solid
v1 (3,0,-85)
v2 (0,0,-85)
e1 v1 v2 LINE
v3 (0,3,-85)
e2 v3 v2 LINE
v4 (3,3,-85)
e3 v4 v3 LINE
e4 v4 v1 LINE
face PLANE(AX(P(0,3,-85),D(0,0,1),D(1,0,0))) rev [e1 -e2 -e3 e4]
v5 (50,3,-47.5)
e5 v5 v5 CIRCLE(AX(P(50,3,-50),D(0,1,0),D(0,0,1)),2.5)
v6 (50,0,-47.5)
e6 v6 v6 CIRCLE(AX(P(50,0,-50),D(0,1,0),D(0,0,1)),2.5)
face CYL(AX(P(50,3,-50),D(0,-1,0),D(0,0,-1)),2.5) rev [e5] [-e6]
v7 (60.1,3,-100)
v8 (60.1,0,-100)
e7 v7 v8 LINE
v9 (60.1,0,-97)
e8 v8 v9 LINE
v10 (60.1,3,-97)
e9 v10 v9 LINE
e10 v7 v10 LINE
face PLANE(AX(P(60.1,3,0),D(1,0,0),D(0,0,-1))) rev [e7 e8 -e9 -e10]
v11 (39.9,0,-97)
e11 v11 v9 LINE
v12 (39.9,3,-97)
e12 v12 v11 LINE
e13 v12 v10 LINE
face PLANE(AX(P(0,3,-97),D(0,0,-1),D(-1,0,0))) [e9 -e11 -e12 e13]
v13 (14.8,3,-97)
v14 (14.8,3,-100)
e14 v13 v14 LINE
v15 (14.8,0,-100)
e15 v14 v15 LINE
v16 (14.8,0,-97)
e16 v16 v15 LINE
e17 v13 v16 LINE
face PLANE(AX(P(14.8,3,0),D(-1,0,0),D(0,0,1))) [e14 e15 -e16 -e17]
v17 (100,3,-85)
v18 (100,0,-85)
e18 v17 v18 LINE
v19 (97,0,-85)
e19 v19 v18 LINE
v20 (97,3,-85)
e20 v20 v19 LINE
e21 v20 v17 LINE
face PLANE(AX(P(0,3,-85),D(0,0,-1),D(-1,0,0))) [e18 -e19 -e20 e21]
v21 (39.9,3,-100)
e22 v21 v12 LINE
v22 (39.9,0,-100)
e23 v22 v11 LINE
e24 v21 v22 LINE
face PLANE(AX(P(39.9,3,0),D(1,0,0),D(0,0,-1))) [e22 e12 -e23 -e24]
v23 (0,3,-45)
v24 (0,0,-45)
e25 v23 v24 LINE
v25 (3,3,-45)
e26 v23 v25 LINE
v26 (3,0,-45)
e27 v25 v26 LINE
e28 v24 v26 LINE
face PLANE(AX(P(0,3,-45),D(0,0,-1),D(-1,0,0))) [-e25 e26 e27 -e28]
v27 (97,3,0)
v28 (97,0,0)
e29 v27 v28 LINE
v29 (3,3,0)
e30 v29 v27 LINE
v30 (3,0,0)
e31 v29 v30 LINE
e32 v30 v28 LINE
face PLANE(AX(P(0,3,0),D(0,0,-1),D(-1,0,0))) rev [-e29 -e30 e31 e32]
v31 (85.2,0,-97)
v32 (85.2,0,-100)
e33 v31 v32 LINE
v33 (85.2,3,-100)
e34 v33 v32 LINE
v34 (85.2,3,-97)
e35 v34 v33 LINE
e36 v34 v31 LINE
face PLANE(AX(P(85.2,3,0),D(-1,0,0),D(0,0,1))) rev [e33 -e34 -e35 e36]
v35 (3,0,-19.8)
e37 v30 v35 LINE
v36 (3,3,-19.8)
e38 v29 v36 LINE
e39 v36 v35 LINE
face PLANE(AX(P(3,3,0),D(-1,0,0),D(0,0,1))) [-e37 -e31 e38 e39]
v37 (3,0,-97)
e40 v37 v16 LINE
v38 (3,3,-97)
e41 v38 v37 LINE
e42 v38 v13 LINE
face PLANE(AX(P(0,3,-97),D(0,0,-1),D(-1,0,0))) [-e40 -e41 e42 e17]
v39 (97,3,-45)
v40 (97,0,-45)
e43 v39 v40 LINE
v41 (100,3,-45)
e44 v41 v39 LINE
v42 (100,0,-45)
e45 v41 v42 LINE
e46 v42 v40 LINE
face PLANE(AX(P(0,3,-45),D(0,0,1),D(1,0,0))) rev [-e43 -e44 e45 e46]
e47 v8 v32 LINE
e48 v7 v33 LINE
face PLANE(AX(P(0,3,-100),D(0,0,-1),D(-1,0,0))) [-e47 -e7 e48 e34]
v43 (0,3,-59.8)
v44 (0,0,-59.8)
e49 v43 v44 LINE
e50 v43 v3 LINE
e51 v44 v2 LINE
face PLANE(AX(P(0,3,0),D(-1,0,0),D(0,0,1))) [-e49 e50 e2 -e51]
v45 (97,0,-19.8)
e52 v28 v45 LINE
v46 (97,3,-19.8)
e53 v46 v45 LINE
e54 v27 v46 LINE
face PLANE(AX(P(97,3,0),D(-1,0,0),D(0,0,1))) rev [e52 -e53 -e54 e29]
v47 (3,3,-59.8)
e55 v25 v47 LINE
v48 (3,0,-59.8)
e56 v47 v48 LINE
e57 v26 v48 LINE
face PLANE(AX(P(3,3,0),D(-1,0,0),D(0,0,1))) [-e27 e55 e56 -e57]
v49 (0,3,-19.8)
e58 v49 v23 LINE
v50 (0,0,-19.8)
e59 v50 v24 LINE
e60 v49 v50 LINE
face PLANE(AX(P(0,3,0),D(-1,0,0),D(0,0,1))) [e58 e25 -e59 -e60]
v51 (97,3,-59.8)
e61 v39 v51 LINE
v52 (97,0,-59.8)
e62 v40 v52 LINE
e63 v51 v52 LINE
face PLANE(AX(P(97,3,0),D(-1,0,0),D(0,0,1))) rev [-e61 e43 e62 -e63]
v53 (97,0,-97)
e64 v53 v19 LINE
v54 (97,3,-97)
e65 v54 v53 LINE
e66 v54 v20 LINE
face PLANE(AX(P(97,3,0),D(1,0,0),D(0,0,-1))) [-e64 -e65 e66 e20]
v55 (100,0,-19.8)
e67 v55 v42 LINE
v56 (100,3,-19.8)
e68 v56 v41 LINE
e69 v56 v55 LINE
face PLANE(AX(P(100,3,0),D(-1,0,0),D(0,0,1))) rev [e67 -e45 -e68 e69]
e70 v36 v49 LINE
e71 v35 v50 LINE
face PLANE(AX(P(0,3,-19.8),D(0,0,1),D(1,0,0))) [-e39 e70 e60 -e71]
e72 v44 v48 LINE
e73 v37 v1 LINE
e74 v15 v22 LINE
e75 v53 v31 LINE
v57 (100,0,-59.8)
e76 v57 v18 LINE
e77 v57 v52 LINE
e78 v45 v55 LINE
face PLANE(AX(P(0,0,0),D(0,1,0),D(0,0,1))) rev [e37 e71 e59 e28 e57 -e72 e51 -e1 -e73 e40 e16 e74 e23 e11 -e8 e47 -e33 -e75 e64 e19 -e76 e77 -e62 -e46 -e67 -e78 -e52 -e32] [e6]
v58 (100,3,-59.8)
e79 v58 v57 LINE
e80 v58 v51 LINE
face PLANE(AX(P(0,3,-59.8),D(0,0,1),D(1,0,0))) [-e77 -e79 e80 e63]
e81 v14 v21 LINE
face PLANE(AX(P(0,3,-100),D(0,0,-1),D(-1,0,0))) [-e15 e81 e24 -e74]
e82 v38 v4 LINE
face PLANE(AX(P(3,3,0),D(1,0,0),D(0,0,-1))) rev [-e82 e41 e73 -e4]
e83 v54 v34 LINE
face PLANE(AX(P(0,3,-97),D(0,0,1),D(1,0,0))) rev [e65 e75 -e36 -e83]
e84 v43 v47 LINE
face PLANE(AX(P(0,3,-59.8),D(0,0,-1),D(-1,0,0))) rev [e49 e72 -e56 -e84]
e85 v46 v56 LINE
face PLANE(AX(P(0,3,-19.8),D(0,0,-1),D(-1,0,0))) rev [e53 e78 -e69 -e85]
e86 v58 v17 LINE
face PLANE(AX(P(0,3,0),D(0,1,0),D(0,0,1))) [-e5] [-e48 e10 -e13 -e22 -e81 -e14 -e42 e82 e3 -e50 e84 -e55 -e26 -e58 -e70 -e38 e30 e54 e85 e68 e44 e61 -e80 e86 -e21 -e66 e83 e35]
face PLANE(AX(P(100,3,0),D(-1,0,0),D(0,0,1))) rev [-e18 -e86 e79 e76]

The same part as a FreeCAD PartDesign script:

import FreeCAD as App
import Part
import Sketcher

doc = App.newDocument("Part")
body = doc.addObject("PartDesign::Body", "Body")

sketch1 = body.newObject("Sketcher::SketchObject", "Sketch")
sketch1.AttachmentSupport = (doc.getObject("XZ_Plane"), [""])
sketch1.MapMode = "FlatFace"
sketch1.addGeometry([
    Part.LineSegment(App.Vector(3, -19.8, 0), App.Vector(3, 0, 0)),
    Part.LineSegment(App.Vector(3, 0, 0), App.Vector(97, 0, 0)),
    Part.LineSegment(App.Vector(97, 0, 0), App.Vector(97, -19.8, 0)),
    Part.LineSegment(App.Vector(97, -19.8, 0), App.Vector(100, -19.8, 0)),
    Part.LineSegment(App.Vector(100, -19.8, 0), App.Vector(100, -45, 0)),
    Part.LineSegment(App.Vector(100, -45, 0), App.Vector(97, -45, 0)),
    Part.LineSegment(App.Vector(97, -45, 0), App.Vector(97, -59.8, 0)),
    Part.LineSegment(App.Vector(97, -59.8, 0), App.Vector(100, -59.8, 0)),
    Part.LineSegment(App.Vector(100, -59.8, 0), App.Vector(100, -85, 0)),
    Part.LineSegment(App.Vector(100, -85, 0), App.Vector(97, -85, 0)),
    Part.LineSegment(App.Vector(97, -85, 0), App.Vector(97, -97, 0)),
    Part.LineSegment(App.Vector(97, -97, 0), App.Vector(85.2, -97, 0)),
    Part.LineSegment(App.Vector(85.2, -97, 0), App.Vector(85.2, -100, 0)),
    Part.LineSegment(App.Vector(85.2, -100, 0), App.Vector(60.1, -100, 0)),
    Part.LineSegment(App.Vector(60.1, -100, 0), App.Vector(60.1, -97, 0)),
    Part.LineSegment(App.Vector(60.1, -97, 0), App.Vector(39.9, -97, 0)),
    Part.LineSegment(App.Vector(39.9, -97, 0), App.Vector(39.9, -100, 0)),
    Part.LineSegment(App.Vector(39.9, -100, 0), App.Vector(14.8, -100, 0)),
    Part.LineSegment(App.Vector(14.8, -100, 0), App.Vector(14.8, -97, 0)),
    Part.LineSegment(App.Vector(14.8, -97, 0), App.Vector(3, -97, 0)),
    Part.LineSegment(App.Vector(3, -97, 0), App.Vector(3, -85, 0)),
    Part.LineSegment(App.Vector(3, -85, 0), App.Vector(0, -85, 0)),
    Part.LineSegment(App.Vector(0, -85, 0), App.Vector(0, -59.8, 0)),
    Part.LineSegment(App.Vector(0, -59.8, 0), App.Vector(3, -59.8, 0)),
    Part.LineSegment(App.Vector(3, -59.8, 0), App.Vector(3, -45, 0)),
    Part.LineSegment(App.Vector(3, -45, 0), App.Vector(0, -45, 0)),
    Part.LineSegment(App.Vector(0, -45, 0), App.Vector(0, -19.8, 0)),
    Part.LineSegment(App.Vector(0, -19.8, 0), App.Vector(3, -19.8, 0)),
    Part.Circle(App.Vector(50, -50, 0), App.Vector(0, 0, 1), 2.5),
], False)
sketch1.addConstraint([
    Sketcher.Constraint("Coincident", 0, 2, 1, 1),
    Sketcher.Constraint("Coincident", 1, 2, 2, 1),
    Sketcher.Constraint("Coincident", 2, 2, 3, 1),
    Sketcher.Constraint("Coincident", 3, 2, 4, 1),
    Sketcher.Constraint("Coincident", 4, 2, 5, 1),
    Sketcher.Constraint("Coincident", 5, 2, 6, 1),
    Sketcher.Constraint("Coincident", 6, 2, 7, 1),
    Sketcher.Constraint("Coincident", 7, 2, 8, 1),
    Sketcher.Constraint("Coincident", 8, 2, 9, 1),
    Sketcher.Constraint("Coincident", 9, 2, 10, 1),
    Sketcher.Constraint("Coincident", 10, 2, 11, 1),
    Sketcher.Constraint("Coincident", 11, 2, 12, 1),
    Sketcher.Constraint("Coincident", 12, 2, 13, 1),
    Sketcher.Constraint("Coincident", 13, 2, 14, 1),
    Sketcher.Constraint("Coincident", 14, 2, 15, 1),
    Sketcher.Constraint("Coincident", 15, 2, 16, 1),
    Sketcher.Constraint("Coincident", 16, 2, 17, 1),
    Sketcher.Constraint("Coincident", 17, 2, 18, 1),
    Sketcher.Constraint("Coincident", 18, 2, 19, 1),
    Sketcher.Constraint("Coincident", 19, 2, 20, 1),
    Sketcher.Constraint("Coincident", 20, 2, 21, 1),
    Sketcher.Constraint("Coincident", 21, 2, 22, 1),
    Sketcher.Constraint("Coincident", 22, 2, 23, 1),
    Sketcher.Constraint("Coincident", 23, 2, 24, 1),
    Sketcher.Constraint("Coincident", 24, 2, 25, 1),
    Sketcher.Constraint("Coincident", 25, 2, 26, 1),
    Sketcher.Constraint("Coincident", 26, 2, 27, 1),
    Sketcher.Constraint("Coincident", 27, 2, 0, 1),
    Sketcher.Constraint("Vertical", 0),
    Sketcher.Constraint("Horizontal", 1),
    Sketcher.Constraint("Vertical", 2),
    Sketcher.Constraint("Horizontal", 3),
    Sketcher.Constraint("Vertical", 4),
    Sketcher.Constraint("Horizontal", 5),
    Sketcher.Constraint("Vertical", 6),
    Sketcher.Constraint("Horizontal", 7),
    Sketcher.Constraint("Vertical", 8),
    Sketcher.Constraint("Horizontal", 9),
    Sketcher.Constraint("Vertical", 10),
    Sketcher.Constraint("Horizontal", 11),
    Sketcher.Constraint("Vertical", 12),
    Sketcher.Constraint("Horizontal", 13),
    Sketcher.Constraint("Vertical", 14),
    Sketcher.Constraint("Horizontal", 15),
    Sketcher.Constraint("Vertical", 16),
    Sketcher.Constraint("Horizontal", 17),
    Sketcher.Constraint("Vertical", 18),
    Sketcher.Constraint("Horizontal", 19),
    Sketcher.Constraint("Vertical", 20),
    Sketcher.Constraint("Horizontal", 21),
    Sketcher.Constraint("Vertical", 22),
    Sketcher.Constraint("Horizontal", 23),
    Sketcher.Constraint("Vertical", 24),
    Sketcher.Constraint("Horizontal", 25),
    Sketcher.Constraint("Vertical", 26),
    Sketcher.Constraint("Horizontal", 27),
    Sketcher.Constraint("PointOnObject", 0, 2, -1),
    Sketcher.Constraint("PointOnObject", 21, 2, -2),
    Sketcher.Constraint("PointOnObject", 25, 2, -2),
    Sketcher.Constraint("Horizontal", 11, 2, 14, 2),
    Sketcher.Constraint("Horizontal", 13, 2, 16, 2),
    Sketcher.Constraint("Horizontal", 15, 2, 18, 2),
    Sketcher.Constraint("Horizontal", 9, 2, 20, 2),
    Sketcher.Constraint("Horizontal", 7, 2, 22, 2),
    Sketcher.Constraint("Horizontal", 5, 2, 24, 2),
    Sketcher.Constraint("Horizontal", 3, 2, 26, 2),
    Sketcher.Constraint("Vertical", 2, 2, 5, 2),
    Sketcher.Constraint("Vertical", 4, 2, 7, 2),
    Sketcher.Constraint("Vertical", 6, 2, 9, 2),
    Sketcher.Constraint("Vertical", 0, 2, 19, 2),
    Sketcher.Constraint("Vertical", 20, 2, 23, 2),
    Sketcher.Constraint("Equal", 13, 17),
    Sketcher.Constraint("Equal", 11, 19),
    Sketcher.Constraint("Equal", 9, 21),
    Sketcher.Constraint("Equal", 4, 8),
    Sketcher.Constraint("Equal", 27, 12),
    Sketcher.Constraint("Diameter", 28, 5.0),
    Sketcher.Constraint("DistanceX", 1, 1, 1, 2, 94.0),
    Sketcher.Constraint("DistanceX", 3, 1, 3, 2, 3.0),
    Sketcher.Constraint("DistanceY", 10, 2, 10, 1, 12.0),
    Sketcher.Constraint("DistanceX", 11, 2, 11, 1, 11.8),
    Sketcher.Constraint("DistanceX", 13, 2, 13, 1, 25.1),
    Sketcher.Constraint("DistanceY", 0, 1, 0, 2, 19.8),
    Sketcher.Constraint("DistanceY", 4, 2, 4, 1, 25.2),
    Sketcher.Constraint("DistanceY", 6, 2, 6, 1, 14.8),
    Sketcher.Constraint("DistanceX", -1, 1, 28, 3, 50.0),
    Sketcher.Constraint("DistanceY", 28, 3, -1, 1, 50.0),
])
pad1 = body.newObject("PartDesign::Pad", "Pad")
pad1.Profile = sketch1
pad1.Length = 3
pad1.Reversed = True

doc.recompute()
